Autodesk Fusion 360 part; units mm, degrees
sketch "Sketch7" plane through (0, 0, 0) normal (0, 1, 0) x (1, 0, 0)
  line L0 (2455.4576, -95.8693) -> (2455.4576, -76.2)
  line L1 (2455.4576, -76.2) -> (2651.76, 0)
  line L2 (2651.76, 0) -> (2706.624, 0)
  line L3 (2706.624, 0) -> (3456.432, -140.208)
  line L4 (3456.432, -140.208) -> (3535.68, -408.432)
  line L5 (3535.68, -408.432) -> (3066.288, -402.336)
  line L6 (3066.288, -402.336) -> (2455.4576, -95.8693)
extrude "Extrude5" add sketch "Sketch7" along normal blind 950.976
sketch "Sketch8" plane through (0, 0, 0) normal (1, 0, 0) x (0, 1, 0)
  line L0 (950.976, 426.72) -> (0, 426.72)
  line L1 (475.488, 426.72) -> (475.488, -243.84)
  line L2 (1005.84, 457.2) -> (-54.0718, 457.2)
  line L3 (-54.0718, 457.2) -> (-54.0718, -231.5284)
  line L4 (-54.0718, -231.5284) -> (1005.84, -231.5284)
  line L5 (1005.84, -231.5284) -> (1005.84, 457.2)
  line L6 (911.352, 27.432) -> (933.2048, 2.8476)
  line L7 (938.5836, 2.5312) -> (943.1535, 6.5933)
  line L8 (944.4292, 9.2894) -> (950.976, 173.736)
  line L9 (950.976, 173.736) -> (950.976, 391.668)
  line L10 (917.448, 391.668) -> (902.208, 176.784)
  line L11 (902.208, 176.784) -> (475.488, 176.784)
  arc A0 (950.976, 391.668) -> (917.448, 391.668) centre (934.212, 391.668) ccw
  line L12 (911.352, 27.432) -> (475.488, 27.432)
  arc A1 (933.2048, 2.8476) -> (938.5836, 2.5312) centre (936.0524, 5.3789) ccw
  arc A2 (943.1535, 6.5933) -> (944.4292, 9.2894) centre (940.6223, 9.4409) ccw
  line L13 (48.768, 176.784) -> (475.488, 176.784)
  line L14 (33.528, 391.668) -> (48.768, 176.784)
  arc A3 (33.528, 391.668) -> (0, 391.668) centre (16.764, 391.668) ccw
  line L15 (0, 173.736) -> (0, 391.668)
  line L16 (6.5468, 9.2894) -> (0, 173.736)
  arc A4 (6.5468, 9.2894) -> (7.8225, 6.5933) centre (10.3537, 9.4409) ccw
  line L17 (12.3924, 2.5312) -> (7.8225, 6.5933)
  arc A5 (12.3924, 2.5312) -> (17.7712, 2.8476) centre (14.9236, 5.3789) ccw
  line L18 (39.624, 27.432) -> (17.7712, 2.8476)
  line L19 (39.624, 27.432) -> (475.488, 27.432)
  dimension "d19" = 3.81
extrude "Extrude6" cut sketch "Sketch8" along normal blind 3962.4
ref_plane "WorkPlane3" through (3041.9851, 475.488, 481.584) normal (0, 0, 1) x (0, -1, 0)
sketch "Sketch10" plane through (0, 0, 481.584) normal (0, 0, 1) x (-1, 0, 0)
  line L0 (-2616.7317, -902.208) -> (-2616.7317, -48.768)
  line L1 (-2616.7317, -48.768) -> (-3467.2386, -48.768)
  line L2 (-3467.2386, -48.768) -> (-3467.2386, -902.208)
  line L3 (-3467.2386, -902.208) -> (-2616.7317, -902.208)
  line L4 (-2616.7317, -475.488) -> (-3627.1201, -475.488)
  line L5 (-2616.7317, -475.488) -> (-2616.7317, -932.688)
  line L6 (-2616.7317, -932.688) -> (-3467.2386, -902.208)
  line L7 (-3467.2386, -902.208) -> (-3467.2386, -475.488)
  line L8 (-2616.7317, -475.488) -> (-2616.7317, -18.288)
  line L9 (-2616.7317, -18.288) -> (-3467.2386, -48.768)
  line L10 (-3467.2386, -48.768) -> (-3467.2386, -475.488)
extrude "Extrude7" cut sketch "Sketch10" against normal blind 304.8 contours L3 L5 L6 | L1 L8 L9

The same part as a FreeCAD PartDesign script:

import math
import FreeCAD as App
import Part
import Sketcher

V = App.Vector
Q = App.Units.Quantity

doc = App.newDocument("Part")
body = doc.addObject("PartDesign::Body", "Body")

sketch1 = doc.addObject("Sketcher::SketchObject", "Sketch")
body.addObject(sketch1)
sketch1.AttachmentSupport = (doc.XZ_Plane, [""])
sketch1.MapMode = "FlatFace"
sketch1.addGeometry([
    Part.LineSegment(V(2455.4576, 76.2, 0), V(2455.4576, 95.8693, 0)),
    Part.LineSegment(V(2455.4576, 95.8693, 0), V(3066.288, 402.336, 0)),
    Part.LineSegment(V(3066.288, 402.336, 0), V(3535.68, 408.432, 0)),
    Part.LineSegment(V(3535.68, 408.432, 0), V(3456.432, 140.208, 0)),
    Part.LineSegment(V(3456.432, 140.208, 0), V(2706.624, 0, 0)),
    Part.LineSegment(V(2706.624, 0, 0), V(2651.76, 0, 0)),
    Part.LineSegment(V(2651.76, 0, 0), V(2455.4576, 76.2, 0)),
], False)
sketch1.addConstraint([
    Sketcher.Constraint("Coincident", 0, 2, 1, 1),
    Sketcher.Constraint("Coincident", 1, 2, 2, 1),
    Sketcher.Constraint("Coincident", 2, 2, 3, 1),
    Sketcher.Constraint("Coincident", 3, 2, 4, 1),
    Sketcher.Constraint("Coincident", 4, 2, 5, 1),
    Sketcher.Constraint("Coincident", 5, 2, 6, 1),
    Sketcher.Constraint("Coincident", 6, 2, 0, 1),
    Sketcher.Constraint("Vertical", 0),
    Sketcher.Constraint("Horizontal", 5),
    Sketcher.Constraint("PointOnObject", 4, 2, -1),
    Sketcher.Constraint("DistanceY", -1, 1, 6, 2, Q("3 in")),
    Sketcher.Constraint("DistanceX", 5, 2, 5, 1, Q("2.16 in")),
    Sketcher.Constraint("DistanceX", -1, 1, 2, 2, Q("139.2 in")),
    Sketcher.Constraint("DistanceX", -1, 1, 5, 2, Q("104.4 in")),
    Sketcher.Constraint("DistanceX", -1, 1, 1, 2, Q("120.72 in")),
    Sketcher.Constraint("DistanceY", -1, 1, 1, 2, Q("15.84 in")),
    Sketcher.Constraint("DistanceY", -1, 1, 2, 2, Q("16.08 in")),
    Sketcher.Constraint("DistanceX", -1, 1, 3, 2, Q("136.08 in")),
    Sketcher.Constraint("DistanceY", -1, 1, 3, 2, Q("5.52 in")),
    Sketcher.Constraint("DistanceY", 0, 1, 0, 2, Q("19.6693 mm")),
    Sketcher.Constraint("Distance", 1, Q("26.9055118 in")),
])
pad1 = doc.addObject("PartDesign::Pad", "Pad")
body.addObject(pad1)
pad1.Profile = sketch1
pad1.Length = Q("37.44 in")
pad1.Reversed = True

sketch2 = doc.addObject("Sketcher::SketchObject", "Sketch001")
body.addObject(sketch2)
sketch2.AttachmentSupport = (doc.YZ_Plane, [""])
sketch2.MapMode = "FlatFace"
sketch2.addGeometry([
    Part.LineSegment(V(-54.0718, -231.5284, 0), V(475.488, -231.5284, 0)),
    Part.LineSegment(V(475.488, -231.5284, 0), V(1005.84, -231.5284, 0)),
    Part.LineSegment(V(1005.84, -231.5284, 0), V(1005.84, 457.2, 0)),
    Part.LineSegment(V(1005.84, 457.2, 0), V(-54.0718, 457.2, 0)),
    Part.LineSegment(V(-54.0718, 457.2, 0), V(-54.0718, -231.5284, 0)),
    Part.LineSegment(V(48.768, 176.784, 0), V(902.208, 176.784, 0)),
    Part.LineSegment(V(902.208, 176.784, 0), V(917.448, 391.668, 0)),
    Part.ArcOfCircle(Part.Circle(V(934.212, 391.668, 0), V(0, 0, 1), 16.764), math.radians(0), math.radians(180)),
    Part.LineSegment(V(950.976, 391.668, 0), V(950.976, 173.736, 0)),
    Part.LineSegment(V(950.976, 173.736, 0), V(944.4292, 9.2894, 0)),
    Part.ArcOfCircle(Part.Circle(V(940.6223, 9.4409, 0), V(0, 0, 1), 3.809961), math.radians(-48.366461), math.radians(-2.278949)),
    Part.LineSegment(V(943.1535, 6.5933, 0), V(938.5836, 2.5312, 0)),
    Part.ArcOfCircle(Part.Circle(V(936.0524, 5.3789, 0), V(0, 0, 1), 3.810027), math.radians(-138.365337), math.radians(-48.36746)),
    Part.LineSegment(V(933.2048, 2.8476, 0), V(911.352, 27.432, 0)),
    Part.LineSegment(V(911.352, 27.432, 0), V(475.488, 27.432, 0)),
    Part.LineSegment(V(475.488, 27.432, 0), V(39.624, 27.432, 0)),
    Part.LineSegment(V(39.624, 27.432, 0), V(17.7712, 2.8476, 0)),
    Part.ArcOfCircle(Part.Circle(V(14.9236, 5.3789, 0), V(0, 0, 1), 3.810035), math.radians(-131.63254), math.radians(-41.634663)),
    Part.LineSegment(V(12.3924, 2.5312, 0), V(7.8225, 6.5933, 0)),
    Part.ArcOfCircle(Part.Circle(V(10.3537, 9.4409, 0), V(0, 0, 1), 3.809913), math.radians(-177.721051), math.radians(-131.633539)),
    Part.LineSegment(V(6.5468, 9.2894, 0), V(0, 173.736, 0)),
    Part.LineSegment(V(0, 173.736, 0), V(0, 391.668, 0)),
    Part.ArcOfCircle(Part.Circle(V(16.764, 391.668, 0), V(0, 0, 1), 16.764), math.radians(0), math.radians(180)),
    Part.LineSegment(V(33.528, 391.668, 0), V(48.768, 176.784, 0)),
], False)
sketch2.addConstraint([
    Sketcher.Constraint("Coincident", 0, 2, 1, 1),
    Sketcher.Constraint("Coincident", 1, 2, 2, 1),
    Sketcher.Constraint("Coincident", 2, 2, 3, 1),
    Sketcher.Constraint("Coincident", 3, 2, 4, 1),
    Sketcher.Constraint("Coincident", 4, 2, 0, 1),
    Sketcher.Constraint("Coincident", 5, 2, 6, 1),
    Sketcher.Constraint("Coincident", 6, 2, 7, 2),
    Sketcher.Constraint("Tangent", 7, 1, 8, 1),
    Sketcher.Constraint("Coincident", 8, 2, 9, 1),
    Sketcher.Constraint("Tangent", 9, 2, 10, 2),
    Sketcher.Constraint("Tangent", 10, 1, 11, 1),
    Sketcher.Constraint("Tangent", 11, 2, 12, 2),
    Sketcher.Constraint("Tangent", 12, 1, 13, 1),
    Sketcher.Constraint("Coincident", 13, 2, 14, 1),
    Sketcher.Constraint("Coincident", 14, 2, 15, 1),
    Sketcher.Constraint("Coincident", 15, 2, 16, 1),
    Sketcher.Constraint("Tangent", 16, 2, 17, 2),
    Sketcher.Constraint("Tangent", 17, 1, 18, 1),
    Sketcher.Constraint("Tangent", 18, 2, 19, 2),
    Sketcher.Constraint("Tangent", 19, 1, 20, 1),
    Sketcher.Constraint("Coincident", 20, 2, 21, 1),
    Sketcher.Constraint("Tangent", 21, 2, 22, 2),
    Sketcher.Constraint("Coincident", 22, 1, 23, 1),
    Sketcher.Constraint("Coincident", 23, 2, 5, 1),
    Sketcher.Constraint("Horizontal", 0),
    Sketcher.Constraint("Horizontal", 1),
    Sketcher.Constraint("Vertical", 2),
    Sketcher.Constraint("Horizontal", 3),
    Sketcher.Constraint("Vertical", 4),
    Sketcher.Constraint("Horizontal", 5),
    Sketcher.Constraint("Vertical", 8),
    Sketcher.Constraint("Horizontal", 14),
    Sketcher.Constraint("Horizontal", 15),
    Sketcher.Constraint("Vertical", 21),
    Sketcher.Constraint("Equal", 10, 12),
    Sketcher.Constraint("Equal", 12, 17),
    Sketcher.Constraint("Equal", 17, 19),
    Sketcher.Constraint("Equal", 7, 22),
    Sketcher.Constraint("PointOnObject", 20, 2, -2),
    Sketcher.Constraint("Perpendicular", 11, 13),
    Sketcher.Constraint("Perpendicular", 16, 18),
    Sketcher.Constraint("Horizontal", 12, 3, 17, 3),
    Sketcher.Constraint("Horizontal", 10, 3, 19, 3),
    Sketcher.Constraint("Horizontal", 7, 3, 22, 3),
    Sketcher.Constraint("Horizontal", 22, 3, 6, 2),
    Sketcher.Constraint("Horizontal", 12, 1, 16, 2),
    Sketcher.Constraint("Horizontal", 9, 2, 19, 1),
    Sketcher.Constraint("Horizontal", 8, 2, 20, 2),
    Sketcher.Constraint("Horizontal", 21, 2, 22, 1),
    Sketcher.Constraint("Vertical", 0, 2, 14, 2),
    Sketcher.Constraint("Equal", 14, 15),
    Sketcher.Constraint("Equal", 6, 23),
    Sketcher.Constraint("Radius", 10, Q("0.15 in")),
    Sketcher.Constraint("Radius", 7, Q("0.66 in")),
    Sketcher.Constraint("DistanceX", 5, 1, 5, 2, Q("33.6 in")),
    Sketcher.Constraint("DistanceY", -1, 1, 2, 2, Q("18 in")),
    Sketcher.Constraint("DistanceX", 1, 1, 1, 2, Q("20.88 in")),
    Sketcher.Constraint("DistanceX", 14, 2, 14, 1, Q("17.16 in")),
    Sketcher.Constraint("DistanceY", 8, 2, 8, 1, Q("8.58 in")),
    Sketcher.Constraint("DistanceX", -1, 1, 1, 2, Q("39.6 in")),
    Sketcher.Constraint("DistanceY", -1, 1, 7, 3, Q("15.42 in")),
    Sketcher.Constraint("DistanceY", -1, 1, 5, 2, Q("6.96 in")),
    Sketcher.Constraint("DistanceY", -1, 1, 13, 2, Q("1.08 in")),
    Sketcher.Constraint("Angle", 9, Q("-92.2798 deg")),
    Sketcher.Constraint("Distance", 13, Q("1.295 in")),
    Sketcher.Constraint("DistanceX", 0, 1, 0, 2, Q("20.8488 in")),
    Sketcher.Constraint("DistanceY", 2, 1, 2, 2, Q("27.1153 in")),
    Sketcher.Constraint("Distance", 9, Q("6.4794 in")),
])
pocket1 = doc.addObject("PartDesign::Pocket", "Pocket")
body.addObject(pocket1)
pocket1.Profile = sketch2
pocket1.Length = Q("156 in")
pocket1.Reversed = True

sketch3 = doc.addObject("Sketcher::SketchObject", "Sketch002")
body.addObject(sketch3)
sketch3.AttachmentSupport = (doc.XY_Plane, [""])
sketch3.MapMode = "FlatFace"
sketch3.AttachmentOffset = App.Placement(V(0, 0, 18.96 * 25.4), App.Rotation())
sketch3.addGeometry([
    Part.LineSegment(V(2616.7317, 932.688, 0), V(2616.7317, 902.208, 0)),
    Part.LineSegment(V(2616.7317, 902.208, 0), V(3467.2386, 902.208, 0)),
    Part.LineSegment(V(3467.2386, 902.208, 0), V(2616.7317, 932.688, 0)),
    Part.LineSegment(V(3467.2386, 48.768, 0), V(2616.7317, 48.768, 0)),
    Part.LineSegment(V(2616.7317, 48.768, 0), V(2616.7317, 18.288, 0)),
    Part.LineSegment(V(2616.7317, 18.288, 0), V(3467.2386, 48.768, 0)),
], False)
sketch3.addConstraint([
    Sketcher.Constraint("Coincident", 0, 2, 1, 1),
    Sketcher.Constraint("Coincident", 1, 2, 2, 1),
    Sketcher.Constraint("Coincident", 2, 2, 0, 1),
    Sketcher.Constraint("Coincident", 3, 2, 4, 1),
    Sketcher.Constraint("Coincident", 4, 2, 5, 1),
    Sketcher.Constraint("Coincident", 5, 2, 3, 1),
    Sketcher.Constraint("Vertical", 0),
    Sketcher.Constraint("Horizontal", 1),
    Sketcher.Constraint("Horizontal", 3),
    Sketcher.Constraint("Vertical", 4),
    Sketcher.Constraint("Vertical", 2, 2, 3, 2),
    Sketcher.Constraint("Vertical", 1, 2, 5, 2),
    Sketcher.Constraint("Equal", 0, 4),
    Sketcher.Constraint("DistanceY", 0, 2, 0, 1, Q("1.2 in")),
    Sketcher.Constraint("DistanceY", 4, 2, 2, 2, Q("36 in")),
    Sketcher.Constraint("DistanceY", -1, 1, 0, 2, Q("35.52 in")),
    Sketcher.Constraint("DistanceX", 1, 1, 1, 2, Q("850.507 mm")),
    Sketcher.Constraint("DistanceX", -1, 1, 0, 2, Q("2616.7317 mm")),
])
pocket2 = doc.addObject("PartDesign::Pocket", "Pocket001")
body.addObject(pocket2)
pocket2.Profile = sketch3
pocket2.Length = Q("12 in")

doc.recompute()
